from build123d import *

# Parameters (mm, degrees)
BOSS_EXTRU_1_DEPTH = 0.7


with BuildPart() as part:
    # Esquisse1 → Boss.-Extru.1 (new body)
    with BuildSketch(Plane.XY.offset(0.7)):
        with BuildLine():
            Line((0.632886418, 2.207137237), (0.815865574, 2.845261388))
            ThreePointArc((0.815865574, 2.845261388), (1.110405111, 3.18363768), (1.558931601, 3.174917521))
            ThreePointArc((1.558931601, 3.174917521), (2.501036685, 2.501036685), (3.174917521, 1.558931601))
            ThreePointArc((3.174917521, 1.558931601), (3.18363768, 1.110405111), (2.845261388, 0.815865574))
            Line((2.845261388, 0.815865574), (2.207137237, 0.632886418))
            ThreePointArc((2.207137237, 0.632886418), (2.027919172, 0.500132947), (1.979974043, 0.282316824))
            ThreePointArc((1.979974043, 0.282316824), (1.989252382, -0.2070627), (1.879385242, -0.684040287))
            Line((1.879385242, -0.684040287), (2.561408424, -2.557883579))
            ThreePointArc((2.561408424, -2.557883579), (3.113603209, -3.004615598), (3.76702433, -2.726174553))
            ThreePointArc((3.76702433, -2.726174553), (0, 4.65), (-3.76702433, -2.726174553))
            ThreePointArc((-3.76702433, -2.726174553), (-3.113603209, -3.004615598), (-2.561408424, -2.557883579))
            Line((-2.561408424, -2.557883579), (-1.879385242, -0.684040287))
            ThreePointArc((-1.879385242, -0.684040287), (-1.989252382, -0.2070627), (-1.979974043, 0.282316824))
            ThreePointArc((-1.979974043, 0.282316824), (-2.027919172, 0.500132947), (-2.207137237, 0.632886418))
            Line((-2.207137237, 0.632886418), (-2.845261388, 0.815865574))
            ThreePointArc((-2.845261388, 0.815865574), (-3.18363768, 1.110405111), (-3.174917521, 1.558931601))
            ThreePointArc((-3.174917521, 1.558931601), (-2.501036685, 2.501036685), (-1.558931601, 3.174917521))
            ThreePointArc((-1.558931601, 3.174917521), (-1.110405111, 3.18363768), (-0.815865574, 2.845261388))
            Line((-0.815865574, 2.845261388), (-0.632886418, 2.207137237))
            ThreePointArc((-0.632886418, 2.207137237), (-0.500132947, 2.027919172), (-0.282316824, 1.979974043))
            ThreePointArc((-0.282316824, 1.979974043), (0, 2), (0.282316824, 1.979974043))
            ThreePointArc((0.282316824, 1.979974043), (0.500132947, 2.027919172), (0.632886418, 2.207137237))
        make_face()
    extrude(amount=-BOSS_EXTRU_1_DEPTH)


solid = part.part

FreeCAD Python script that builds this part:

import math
import FreeCAD as App
import Part
import Sketcher

V = App.Vector
Q = App.Units.Quantity

doc = App.newDocument("Part")
params = doc.addObject("Spreadsheet::Sheet", "Params")
for row, (alias, value) in enumerate([
    ("sketch1_radius", "2 mm"),
    ("sketch1_radius2", "0.53 mm"),
    ("sketch1_radius3", "4.65 mm"),
    ("pad1_length", "0.7 mm"),
], start=1):
    params.set(f"A{row}", alias)
    params.set(f"B{row}", "=" + value)
    params.setAlias(f"B{row}", alias)

body = doc.addObject("PartDesign::Body", "Body")

sketch1 = body.newObject("Sketcher::SketchObject", "Sketch")
sketch1.AttachmentSupport = (doc.getObject("XY_Plane"), [""])
sketch1.MapMode = "FlatFace"
sketch1.AttachmentOffset = App.Placement(V(0, 0, 0.7), App.Rotation())
sketch1.addGeometry(Part.LineSegment(V(0.632886, 2.207137, 0), V(0.815866, 2.845261, 0)), False)
sketch1.addGeometry(Part.ArcOfCircle(Part.Circle(V(1.325334, 2.699174, 0), V(0, 0, 1), 0.53), math.radians(63.848277), math.radians(164)), False)
sketch1.addGeometry(Part.ArcOfCircle(Part.Circle(V(0, 0, 0), V(0, 0, 1), 3.537), math.radians(26.151723), math.radians(63.848277)), False)
sketch1.addGeometry(Part.ArcOfCircle(Part.Circle(V(2.699174, 1.325334, 0), V(0, 0, 1), 0.53), math.radians(-74), math.radians(26.151723)), False)
sketch1.addGeometry(Part.LineSegment(V(2.845261, 0.815866, 0), V(2.207137, 0.632886, 0)), False)
sketch1.addGeometry(Part.ArcOfCircle(Part.Circle(V(2.29479, 0.327205, 0), V(0, 0, 1), 0.318), math.radians(106), math.radians(188.114884)), False)
sketch1.addGeometry(Part.ArcOfCircle(Part.Circle(V(0, 0, 0), V(0, 0, 1), 2), math.radians(-20), math.radians(8.114884)), False)
sketch1.addGeometry(Part.LineSegment(V(1.879385, -0.68404, 0), V(2.561408, -2.557884, 0)), False)
sketch1.addGeometry(Part.ArcOfCircle(Part.Circle(V(3.208857, -2.322232, 0), V(0, 0, 1), 0.689), math.radians(-160), math.radians(-35.89305)), False)
sketch1.addGeometry(Part.ArcOfCircle(Part.Circle(V(0, 0, 0), V(0, 0, 1), 4.65), math.radians(-35.89305), math.radians(215.89305)), False)
sketch1.addGeometry(Part.ArcOfCircle(Part.Circle(V(-3.208857, -2.322232, 0), V(0, 0, 1), 0.689), math.radians(-144.10695), math.radians(-20)), False)
sketch1.addGeometry(Part.LineSegment(V(-2.561408, -2.557884, 0), V(-1.879385, -0.68404, 0)), False)
sketch1.addGeometry(Part.ArcOfCircle(Part.Circle(V(0, 0, 0), V(0, 0, 1), 2), math.radians(171.885116), math.radians(200)), False)
sketch1.addGeometry(Part.ArcOfCircle(Part.Circle(V(-2.29479, 0.327205, 0), V(0, 0, 1), 0.318), math.radians(-8.114884), math.radians(74)), False)
sketch1.addGeometry(Part.LineSegment(V(-2.207137, 0.632886, 0), V(-2.845261, 0.815866, 0)), False)
sketch1.addGeometry(Part.ArcOfCircle(Part.Circle(V(-2.699174, 1.325334, 0), V(0, 0, 1), 0.53), math.radians(153.848277), math.radians(254)), False)
sketch1.addGeometry(Part.ArcOfCircle(Part.Circle(V(0, 0, 0), V(0, 0, 1), 3.537), math.radians(116.151723), math.radians(153.848277)), False)
sketch1.addGeometry(Part.ArcOfCircle(Part.Circle(V(-1.325334, 2.699174, 0), V(0, 0, 1), 0.53), math.radians(16), math.radians(116.151723)), False)
sketch1.addGeometry(Part.LineSegment(V(-0.815866, 2.845261, 0), V(-0.632886, 2.207137, 0)), False)
sketch1.addGeometry(Part.ArcOfCircle(Part.Circle(V(-0.327205, 2.29479, 0), V(0, 0, 1), 0.318), math.radians(-164), math.radians(-81.885116)), False)
sketch1.addGeometry(Part.ArcOfCircle(Part.Circle(V(0, 0, 0), V(0, 0, 1), 2), math.radians(81.885116), math.radians(98.114884)), False)
sketch1.addGeometry(Part.ArcOfCircle(Part.Circle(V(0.327205, 2.29479, 0), V(0, 0, 1), 0.318), math.radians(-98.114884), math.radians(-16)), False)
sketch1.addConstraint(Sketcher.Constraint("Tangent", 0, 2, 1, 2))
sketch1.addConstraint(Sketcher.Constraint("Tangent", 1, 1, 2, 2))
sketch1.addConstraint(Sketcher.Constraint("Tangent", 2, 1, 3, 2))
sketch1.addConstraint(Sketcher.Constraint("Tangent", 3, 1, 4, 1))
sketch1.addConstraint(Sketcher.Constraint("Tangent", 4, 2, 5, 1))
sketch1.addConstraint(Sketcher.Constraint("Tangent", 5, 2, 6, 2))
sketch1.addConstraint(Sketcher.Constraint("Coincident", 6, 1, 7, 1))
sketch1.addConstraint(Sketcher.Constraint("Tangent", 7, 2, 8, 1))
sketch1.addConstraint(Sketcher.Constraint("Tangent", 8, 2, 9, 1))
sketch1.addConstraint(Sketcher.Constraint("Tangent", 9, 2, 10, 1))
sketch1.addConstraint(Sketcher.Constraint("Tangent", 10, 2, 11, 1))
sketch1.addConstraint(Sketcher.Constraint("Coincident", 11, 2, 12, 2))
sketch1.addConstraint(Sketcher.Constraint("Tangent", 12, 1, 13, 1))
sketch1.addConstraint(Sketcher.Constraint("Tangent", 13, 2, 14, 1))
sketch1.addConstraint(Sketcher.Constraint("Tangent", 14, 2, 15, 2))
sketch1.addConstraint(Sketcher.Constraint("Tangent", 15, 1, 16, 2))
sketch1.addConstraint(Sketcher.Constraint("Tangent", 16, 1, 17, 2))
sketch1.addConstraint(Sketcher.Constraint("Tangent", 17, 1, 18, 1))
sketch1.addConstraint(Sketcher.Constraint("Tangent", 18, 2, 19, 1))
sketch1.addConstraint(Sketcher.Constraint("Tangent", 19, 2, 20, 2))
sketch1.addConstraint(Sketcher.Constraint("Tangent", 20, 1, 21, 1))
sketch1.addConstraint(Sketcher.Constraint("Tangent", 21, 2, 0, 1))
sketch1.addConstraint(Sketcher.Constraint("Coincident", 2, 3, -1, 1))
sketch1.addConstraint(Sketcher.Constraint("Coincident", 6, 3, -1, 1))
sketch1.addConstraint(Sketcher.Constraint("Coincident", 9, 3, -1, 1))
sketch1.addConstraint(Sketcher.Constraint("Coincident", 12, 3, -1, 1))
sketch1.addConstraint(Sketcher.Constraint("Coincident", 16, 3, -1, 1))
sketch1.addConstraint(Sketcher.Constraint("Coincident", 20, 3, -1, 1))
sketch1.addConstraint(Sketcher.Constraint("Equal", 1, 3))
sketch1.addConstraint(Sketcher.Constraint("Equal", 8, 10))
sketch1.addConstraint(Sketcher.Constraint("Equal", 6, 12))
sketch1.addConstraint(Sketcher.Constraint("Equal", 5, 13))
sketch1.addConstraint(Sketcher.Constraint("Equal", 3, 15))
sketch1.addConstraint(Sketcher.Constraint("Equal", 2, 16))
sketch1.addConstraint(Sketcher.Constraint("Equal", 15, 17))
sketch1.addConstraint(Sketcher.Constraint("Equal", 13, 19))
sketch1.addConstraint(Sketcher.Constraint("Equal", 12, 20))
sketch1.addConstraint(Sketcher.Constraint("Equal", 19, 21))
sketch1.addConstraint(Sketcher.Constraint("Symmetric", 7, 2, 10, 2, -2))
sketch1.addConstraint(Sketcher.Constraint("Symmetric", 4, 2, 13, 2, -2))
sketch1.addConstraint(Sketcher.Constraint("Symmetric", 0, 2, 17, 1, -2))
sketch1.addConstraint(Sketcher.Constraint("Perpendicular", 0, 14))
sketch1.addConstraint(Sketcher.Constraint("Equal", 0, 4))
sketch1.addConstraint(Sketcher.Constraint("Radius", 6, 2.0))
sketch1.addConstraint(Sketcher.Constraint("Angle", 0, Q("74 deg")))
sketch1.addConstraint(Sketcher.Constraint("Angle", 7, Q("-70 deg")))
sketch1.addConstraint(Sketcher.Constraint("Radius", 1, 0.53))
sketch1.addConstraint(Sketcher.Constraint("Radius", 9, 4.65))
sketch1.addConstraint(Sketcher.Constraint("Radius", 2, 3.537))
sketch1.addConstraint(Sketcher.Constraint("Radius", 5, 0.318))
sketch1.addConstraint(Sketcher.Constraint("Radius", 8, 0.689))
sketch1.addConstraint(Sketcher.Constraint("DistanceX", 17, 3, 0, 2, 2.1412))
sketch1.addConstraint(Sketcher.Constraint("DistanceY", 7, 2, 5, 2, 2.8402))
sketch1.setExpression("Constraints[43]", "Params.sketch1_radius")
sketch1.setExpression("Constraints[46]", "Params.sketch1_radius2")
sketch1.setExpression("Constraints[47]", "Params.sketch1_radius3")
pad1 = body.newObject("PartDesign::Pad", "Pad")
pad1.Profile = sketch1
pad1.setExpression("Length", "Params.pad1_length")
pad1.Reversed = True

doc.recompute()
